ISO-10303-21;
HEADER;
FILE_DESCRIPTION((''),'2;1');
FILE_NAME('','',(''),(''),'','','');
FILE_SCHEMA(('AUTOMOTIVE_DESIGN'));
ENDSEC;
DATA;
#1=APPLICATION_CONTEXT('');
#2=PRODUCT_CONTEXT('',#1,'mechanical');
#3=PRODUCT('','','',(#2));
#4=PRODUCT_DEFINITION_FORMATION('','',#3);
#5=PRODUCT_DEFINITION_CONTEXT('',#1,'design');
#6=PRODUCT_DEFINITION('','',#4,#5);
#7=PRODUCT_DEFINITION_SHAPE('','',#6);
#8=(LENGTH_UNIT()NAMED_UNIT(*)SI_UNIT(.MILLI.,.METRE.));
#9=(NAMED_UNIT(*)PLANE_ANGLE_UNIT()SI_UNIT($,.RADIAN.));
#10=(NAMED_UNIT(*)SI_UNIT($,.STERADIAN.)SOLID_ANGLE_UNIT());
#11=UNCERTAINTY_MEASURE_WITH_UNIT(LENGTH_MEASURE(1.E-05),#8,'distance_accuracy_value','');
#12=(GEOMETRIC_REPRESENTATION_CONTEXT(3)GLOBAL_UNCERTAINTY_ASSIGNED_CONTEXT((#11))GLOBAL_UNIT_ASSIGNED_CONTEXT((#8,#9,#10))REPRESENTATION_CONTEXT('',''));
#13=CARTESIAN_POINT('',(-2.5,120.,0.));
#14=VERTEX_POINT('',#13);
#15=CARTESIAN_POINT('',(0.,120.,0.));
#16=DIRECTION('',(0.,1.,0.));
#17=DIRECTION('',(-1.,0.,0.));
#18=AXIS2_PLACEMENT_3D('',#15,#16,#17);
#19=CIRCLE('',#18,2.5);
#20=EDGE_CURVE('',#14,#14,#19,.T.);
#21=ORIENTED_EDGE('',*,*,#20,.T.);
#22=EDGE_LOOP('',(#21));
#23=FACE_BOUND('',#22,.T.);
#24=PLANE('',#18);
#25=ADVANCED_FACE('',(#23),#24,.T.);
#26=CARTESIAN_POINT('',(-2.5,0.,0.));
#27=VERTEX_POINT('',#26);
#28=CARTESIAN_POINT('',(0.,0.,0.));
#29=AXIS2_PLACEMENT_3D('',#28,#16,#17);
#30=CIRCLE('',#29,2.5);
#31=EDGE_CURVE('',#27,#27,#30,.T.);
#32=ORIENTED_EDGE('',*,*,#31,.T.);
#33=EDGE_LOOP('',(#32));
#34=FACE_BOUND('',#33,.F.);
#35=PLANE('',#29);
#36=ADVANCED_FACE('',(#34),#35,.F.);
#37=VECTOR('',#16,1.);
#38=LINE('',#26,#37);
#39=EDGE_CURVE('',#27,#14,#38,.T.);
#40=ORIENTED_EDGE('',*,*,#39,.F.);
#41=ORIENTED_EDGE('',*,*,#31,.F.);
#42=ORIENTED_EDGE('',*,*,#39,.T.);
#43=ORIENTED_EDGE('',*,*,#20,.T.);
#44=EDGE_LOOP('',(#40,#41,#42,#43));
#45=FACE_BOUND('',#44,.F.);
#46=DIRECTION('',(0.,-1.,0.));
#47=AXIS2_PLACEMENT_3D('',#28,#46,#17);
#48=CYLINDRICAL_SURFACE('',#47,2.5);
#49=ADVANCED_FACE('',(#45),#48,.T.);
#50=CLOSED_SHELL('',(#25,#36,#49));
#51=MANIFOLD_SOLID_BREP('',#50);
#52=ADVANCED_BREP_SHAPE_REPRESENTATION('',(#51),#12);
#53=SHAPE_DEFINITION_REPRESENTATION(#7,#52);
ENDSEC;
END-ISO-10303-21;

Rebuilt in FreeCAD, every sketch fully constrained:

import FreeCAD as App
import Part
import Sketcher

V = App.Vector

doc = App.newDocument("Part")
body = doc.addObject("PartDesign::Body", "Body")

# Sketch on XZ plane
sketch1 = body.newObject("Sketcher::SketchObject", "Sketch")
sketch1.AttachmentSupport = (doc.getObject("XZ_Plane"), [""])
sketch1.MapMode = "FlatFace"
sketch1.addGeometry(Part.Circle(V(0, 0, 0), V(0, 0, 1), 2.5), False)
sketch1.addConstraint([
    Sketcher.Constraint("Coincident", 0, 3, -1, 1),
    Sketcher.Constraint("Diameter", 0, 5.0),
])
pad1 = body.newObject("PartDesign::Pad", "Pad")
pad1.Profile = sketch1
pad1.Length = 120
pad1.Reversed = True

doc.recompute()
